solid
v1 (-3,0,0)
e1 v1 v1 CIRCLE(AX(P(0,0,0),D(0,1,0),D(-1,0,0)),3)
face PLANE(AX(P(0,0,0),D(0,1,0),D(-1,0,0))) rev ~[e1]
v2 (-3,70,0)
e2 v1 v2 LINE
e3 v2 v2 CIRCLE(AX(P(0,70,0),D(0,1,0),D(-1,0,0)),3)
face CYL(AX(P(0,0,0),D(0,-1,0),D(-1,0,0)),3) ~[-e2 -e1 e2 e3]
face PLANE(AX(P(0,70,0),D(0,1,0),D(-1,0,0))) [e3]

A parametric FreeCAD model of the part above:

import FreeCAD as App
import Part
import Sketcher

V = App.Vector
Q = App.Units.Quantity

doc = App.newDocument("Part")
params = doc.addObject("Spreadsheet::Sheet", "Params")
for row, (alias, value) in enumerate([
    ("sketch1_diameter", "6 mm"),
    ("pad1_length", "70 mm"),
], start=1):
    params.set(f"A{row}", alias)
    params.set(f"B{row}", "=" + value)
    params.setAlias(f"B{row}", alias)

body = doc.addObject("PartDesign::Body", "Body")

# Sketch on XZ plane
sketch1 = body.newObject("Sketcher::SketchObject", "Sketch")
sketch1.AttachmentSupport = (doc.getObject("XZ_Plane"), [""])
sketch1.MapMode = "FlatFace"
sketch1.addGeometry(Part.Circle(V(0, 0, 0), V(0, 0, 1), 3), False)
sketch1.addConstraint(Sketcher.Constraint("Coincident", 0, 3, -1, 1))
sketch1.addConstraint(Sketcher.Constraint("Diameter", 0, Q("6 mm")))
sketch1.setExpression("Constraints[1]", "Params.sketch1_diameter")
pad1 = body.newObject("PartDesign::Pad", "Pad")
pad1.Profile = sketch1
pad1.setExpression("Length", "Params.pad1_length")
pad1.Reversed = True

doc.recompute()
